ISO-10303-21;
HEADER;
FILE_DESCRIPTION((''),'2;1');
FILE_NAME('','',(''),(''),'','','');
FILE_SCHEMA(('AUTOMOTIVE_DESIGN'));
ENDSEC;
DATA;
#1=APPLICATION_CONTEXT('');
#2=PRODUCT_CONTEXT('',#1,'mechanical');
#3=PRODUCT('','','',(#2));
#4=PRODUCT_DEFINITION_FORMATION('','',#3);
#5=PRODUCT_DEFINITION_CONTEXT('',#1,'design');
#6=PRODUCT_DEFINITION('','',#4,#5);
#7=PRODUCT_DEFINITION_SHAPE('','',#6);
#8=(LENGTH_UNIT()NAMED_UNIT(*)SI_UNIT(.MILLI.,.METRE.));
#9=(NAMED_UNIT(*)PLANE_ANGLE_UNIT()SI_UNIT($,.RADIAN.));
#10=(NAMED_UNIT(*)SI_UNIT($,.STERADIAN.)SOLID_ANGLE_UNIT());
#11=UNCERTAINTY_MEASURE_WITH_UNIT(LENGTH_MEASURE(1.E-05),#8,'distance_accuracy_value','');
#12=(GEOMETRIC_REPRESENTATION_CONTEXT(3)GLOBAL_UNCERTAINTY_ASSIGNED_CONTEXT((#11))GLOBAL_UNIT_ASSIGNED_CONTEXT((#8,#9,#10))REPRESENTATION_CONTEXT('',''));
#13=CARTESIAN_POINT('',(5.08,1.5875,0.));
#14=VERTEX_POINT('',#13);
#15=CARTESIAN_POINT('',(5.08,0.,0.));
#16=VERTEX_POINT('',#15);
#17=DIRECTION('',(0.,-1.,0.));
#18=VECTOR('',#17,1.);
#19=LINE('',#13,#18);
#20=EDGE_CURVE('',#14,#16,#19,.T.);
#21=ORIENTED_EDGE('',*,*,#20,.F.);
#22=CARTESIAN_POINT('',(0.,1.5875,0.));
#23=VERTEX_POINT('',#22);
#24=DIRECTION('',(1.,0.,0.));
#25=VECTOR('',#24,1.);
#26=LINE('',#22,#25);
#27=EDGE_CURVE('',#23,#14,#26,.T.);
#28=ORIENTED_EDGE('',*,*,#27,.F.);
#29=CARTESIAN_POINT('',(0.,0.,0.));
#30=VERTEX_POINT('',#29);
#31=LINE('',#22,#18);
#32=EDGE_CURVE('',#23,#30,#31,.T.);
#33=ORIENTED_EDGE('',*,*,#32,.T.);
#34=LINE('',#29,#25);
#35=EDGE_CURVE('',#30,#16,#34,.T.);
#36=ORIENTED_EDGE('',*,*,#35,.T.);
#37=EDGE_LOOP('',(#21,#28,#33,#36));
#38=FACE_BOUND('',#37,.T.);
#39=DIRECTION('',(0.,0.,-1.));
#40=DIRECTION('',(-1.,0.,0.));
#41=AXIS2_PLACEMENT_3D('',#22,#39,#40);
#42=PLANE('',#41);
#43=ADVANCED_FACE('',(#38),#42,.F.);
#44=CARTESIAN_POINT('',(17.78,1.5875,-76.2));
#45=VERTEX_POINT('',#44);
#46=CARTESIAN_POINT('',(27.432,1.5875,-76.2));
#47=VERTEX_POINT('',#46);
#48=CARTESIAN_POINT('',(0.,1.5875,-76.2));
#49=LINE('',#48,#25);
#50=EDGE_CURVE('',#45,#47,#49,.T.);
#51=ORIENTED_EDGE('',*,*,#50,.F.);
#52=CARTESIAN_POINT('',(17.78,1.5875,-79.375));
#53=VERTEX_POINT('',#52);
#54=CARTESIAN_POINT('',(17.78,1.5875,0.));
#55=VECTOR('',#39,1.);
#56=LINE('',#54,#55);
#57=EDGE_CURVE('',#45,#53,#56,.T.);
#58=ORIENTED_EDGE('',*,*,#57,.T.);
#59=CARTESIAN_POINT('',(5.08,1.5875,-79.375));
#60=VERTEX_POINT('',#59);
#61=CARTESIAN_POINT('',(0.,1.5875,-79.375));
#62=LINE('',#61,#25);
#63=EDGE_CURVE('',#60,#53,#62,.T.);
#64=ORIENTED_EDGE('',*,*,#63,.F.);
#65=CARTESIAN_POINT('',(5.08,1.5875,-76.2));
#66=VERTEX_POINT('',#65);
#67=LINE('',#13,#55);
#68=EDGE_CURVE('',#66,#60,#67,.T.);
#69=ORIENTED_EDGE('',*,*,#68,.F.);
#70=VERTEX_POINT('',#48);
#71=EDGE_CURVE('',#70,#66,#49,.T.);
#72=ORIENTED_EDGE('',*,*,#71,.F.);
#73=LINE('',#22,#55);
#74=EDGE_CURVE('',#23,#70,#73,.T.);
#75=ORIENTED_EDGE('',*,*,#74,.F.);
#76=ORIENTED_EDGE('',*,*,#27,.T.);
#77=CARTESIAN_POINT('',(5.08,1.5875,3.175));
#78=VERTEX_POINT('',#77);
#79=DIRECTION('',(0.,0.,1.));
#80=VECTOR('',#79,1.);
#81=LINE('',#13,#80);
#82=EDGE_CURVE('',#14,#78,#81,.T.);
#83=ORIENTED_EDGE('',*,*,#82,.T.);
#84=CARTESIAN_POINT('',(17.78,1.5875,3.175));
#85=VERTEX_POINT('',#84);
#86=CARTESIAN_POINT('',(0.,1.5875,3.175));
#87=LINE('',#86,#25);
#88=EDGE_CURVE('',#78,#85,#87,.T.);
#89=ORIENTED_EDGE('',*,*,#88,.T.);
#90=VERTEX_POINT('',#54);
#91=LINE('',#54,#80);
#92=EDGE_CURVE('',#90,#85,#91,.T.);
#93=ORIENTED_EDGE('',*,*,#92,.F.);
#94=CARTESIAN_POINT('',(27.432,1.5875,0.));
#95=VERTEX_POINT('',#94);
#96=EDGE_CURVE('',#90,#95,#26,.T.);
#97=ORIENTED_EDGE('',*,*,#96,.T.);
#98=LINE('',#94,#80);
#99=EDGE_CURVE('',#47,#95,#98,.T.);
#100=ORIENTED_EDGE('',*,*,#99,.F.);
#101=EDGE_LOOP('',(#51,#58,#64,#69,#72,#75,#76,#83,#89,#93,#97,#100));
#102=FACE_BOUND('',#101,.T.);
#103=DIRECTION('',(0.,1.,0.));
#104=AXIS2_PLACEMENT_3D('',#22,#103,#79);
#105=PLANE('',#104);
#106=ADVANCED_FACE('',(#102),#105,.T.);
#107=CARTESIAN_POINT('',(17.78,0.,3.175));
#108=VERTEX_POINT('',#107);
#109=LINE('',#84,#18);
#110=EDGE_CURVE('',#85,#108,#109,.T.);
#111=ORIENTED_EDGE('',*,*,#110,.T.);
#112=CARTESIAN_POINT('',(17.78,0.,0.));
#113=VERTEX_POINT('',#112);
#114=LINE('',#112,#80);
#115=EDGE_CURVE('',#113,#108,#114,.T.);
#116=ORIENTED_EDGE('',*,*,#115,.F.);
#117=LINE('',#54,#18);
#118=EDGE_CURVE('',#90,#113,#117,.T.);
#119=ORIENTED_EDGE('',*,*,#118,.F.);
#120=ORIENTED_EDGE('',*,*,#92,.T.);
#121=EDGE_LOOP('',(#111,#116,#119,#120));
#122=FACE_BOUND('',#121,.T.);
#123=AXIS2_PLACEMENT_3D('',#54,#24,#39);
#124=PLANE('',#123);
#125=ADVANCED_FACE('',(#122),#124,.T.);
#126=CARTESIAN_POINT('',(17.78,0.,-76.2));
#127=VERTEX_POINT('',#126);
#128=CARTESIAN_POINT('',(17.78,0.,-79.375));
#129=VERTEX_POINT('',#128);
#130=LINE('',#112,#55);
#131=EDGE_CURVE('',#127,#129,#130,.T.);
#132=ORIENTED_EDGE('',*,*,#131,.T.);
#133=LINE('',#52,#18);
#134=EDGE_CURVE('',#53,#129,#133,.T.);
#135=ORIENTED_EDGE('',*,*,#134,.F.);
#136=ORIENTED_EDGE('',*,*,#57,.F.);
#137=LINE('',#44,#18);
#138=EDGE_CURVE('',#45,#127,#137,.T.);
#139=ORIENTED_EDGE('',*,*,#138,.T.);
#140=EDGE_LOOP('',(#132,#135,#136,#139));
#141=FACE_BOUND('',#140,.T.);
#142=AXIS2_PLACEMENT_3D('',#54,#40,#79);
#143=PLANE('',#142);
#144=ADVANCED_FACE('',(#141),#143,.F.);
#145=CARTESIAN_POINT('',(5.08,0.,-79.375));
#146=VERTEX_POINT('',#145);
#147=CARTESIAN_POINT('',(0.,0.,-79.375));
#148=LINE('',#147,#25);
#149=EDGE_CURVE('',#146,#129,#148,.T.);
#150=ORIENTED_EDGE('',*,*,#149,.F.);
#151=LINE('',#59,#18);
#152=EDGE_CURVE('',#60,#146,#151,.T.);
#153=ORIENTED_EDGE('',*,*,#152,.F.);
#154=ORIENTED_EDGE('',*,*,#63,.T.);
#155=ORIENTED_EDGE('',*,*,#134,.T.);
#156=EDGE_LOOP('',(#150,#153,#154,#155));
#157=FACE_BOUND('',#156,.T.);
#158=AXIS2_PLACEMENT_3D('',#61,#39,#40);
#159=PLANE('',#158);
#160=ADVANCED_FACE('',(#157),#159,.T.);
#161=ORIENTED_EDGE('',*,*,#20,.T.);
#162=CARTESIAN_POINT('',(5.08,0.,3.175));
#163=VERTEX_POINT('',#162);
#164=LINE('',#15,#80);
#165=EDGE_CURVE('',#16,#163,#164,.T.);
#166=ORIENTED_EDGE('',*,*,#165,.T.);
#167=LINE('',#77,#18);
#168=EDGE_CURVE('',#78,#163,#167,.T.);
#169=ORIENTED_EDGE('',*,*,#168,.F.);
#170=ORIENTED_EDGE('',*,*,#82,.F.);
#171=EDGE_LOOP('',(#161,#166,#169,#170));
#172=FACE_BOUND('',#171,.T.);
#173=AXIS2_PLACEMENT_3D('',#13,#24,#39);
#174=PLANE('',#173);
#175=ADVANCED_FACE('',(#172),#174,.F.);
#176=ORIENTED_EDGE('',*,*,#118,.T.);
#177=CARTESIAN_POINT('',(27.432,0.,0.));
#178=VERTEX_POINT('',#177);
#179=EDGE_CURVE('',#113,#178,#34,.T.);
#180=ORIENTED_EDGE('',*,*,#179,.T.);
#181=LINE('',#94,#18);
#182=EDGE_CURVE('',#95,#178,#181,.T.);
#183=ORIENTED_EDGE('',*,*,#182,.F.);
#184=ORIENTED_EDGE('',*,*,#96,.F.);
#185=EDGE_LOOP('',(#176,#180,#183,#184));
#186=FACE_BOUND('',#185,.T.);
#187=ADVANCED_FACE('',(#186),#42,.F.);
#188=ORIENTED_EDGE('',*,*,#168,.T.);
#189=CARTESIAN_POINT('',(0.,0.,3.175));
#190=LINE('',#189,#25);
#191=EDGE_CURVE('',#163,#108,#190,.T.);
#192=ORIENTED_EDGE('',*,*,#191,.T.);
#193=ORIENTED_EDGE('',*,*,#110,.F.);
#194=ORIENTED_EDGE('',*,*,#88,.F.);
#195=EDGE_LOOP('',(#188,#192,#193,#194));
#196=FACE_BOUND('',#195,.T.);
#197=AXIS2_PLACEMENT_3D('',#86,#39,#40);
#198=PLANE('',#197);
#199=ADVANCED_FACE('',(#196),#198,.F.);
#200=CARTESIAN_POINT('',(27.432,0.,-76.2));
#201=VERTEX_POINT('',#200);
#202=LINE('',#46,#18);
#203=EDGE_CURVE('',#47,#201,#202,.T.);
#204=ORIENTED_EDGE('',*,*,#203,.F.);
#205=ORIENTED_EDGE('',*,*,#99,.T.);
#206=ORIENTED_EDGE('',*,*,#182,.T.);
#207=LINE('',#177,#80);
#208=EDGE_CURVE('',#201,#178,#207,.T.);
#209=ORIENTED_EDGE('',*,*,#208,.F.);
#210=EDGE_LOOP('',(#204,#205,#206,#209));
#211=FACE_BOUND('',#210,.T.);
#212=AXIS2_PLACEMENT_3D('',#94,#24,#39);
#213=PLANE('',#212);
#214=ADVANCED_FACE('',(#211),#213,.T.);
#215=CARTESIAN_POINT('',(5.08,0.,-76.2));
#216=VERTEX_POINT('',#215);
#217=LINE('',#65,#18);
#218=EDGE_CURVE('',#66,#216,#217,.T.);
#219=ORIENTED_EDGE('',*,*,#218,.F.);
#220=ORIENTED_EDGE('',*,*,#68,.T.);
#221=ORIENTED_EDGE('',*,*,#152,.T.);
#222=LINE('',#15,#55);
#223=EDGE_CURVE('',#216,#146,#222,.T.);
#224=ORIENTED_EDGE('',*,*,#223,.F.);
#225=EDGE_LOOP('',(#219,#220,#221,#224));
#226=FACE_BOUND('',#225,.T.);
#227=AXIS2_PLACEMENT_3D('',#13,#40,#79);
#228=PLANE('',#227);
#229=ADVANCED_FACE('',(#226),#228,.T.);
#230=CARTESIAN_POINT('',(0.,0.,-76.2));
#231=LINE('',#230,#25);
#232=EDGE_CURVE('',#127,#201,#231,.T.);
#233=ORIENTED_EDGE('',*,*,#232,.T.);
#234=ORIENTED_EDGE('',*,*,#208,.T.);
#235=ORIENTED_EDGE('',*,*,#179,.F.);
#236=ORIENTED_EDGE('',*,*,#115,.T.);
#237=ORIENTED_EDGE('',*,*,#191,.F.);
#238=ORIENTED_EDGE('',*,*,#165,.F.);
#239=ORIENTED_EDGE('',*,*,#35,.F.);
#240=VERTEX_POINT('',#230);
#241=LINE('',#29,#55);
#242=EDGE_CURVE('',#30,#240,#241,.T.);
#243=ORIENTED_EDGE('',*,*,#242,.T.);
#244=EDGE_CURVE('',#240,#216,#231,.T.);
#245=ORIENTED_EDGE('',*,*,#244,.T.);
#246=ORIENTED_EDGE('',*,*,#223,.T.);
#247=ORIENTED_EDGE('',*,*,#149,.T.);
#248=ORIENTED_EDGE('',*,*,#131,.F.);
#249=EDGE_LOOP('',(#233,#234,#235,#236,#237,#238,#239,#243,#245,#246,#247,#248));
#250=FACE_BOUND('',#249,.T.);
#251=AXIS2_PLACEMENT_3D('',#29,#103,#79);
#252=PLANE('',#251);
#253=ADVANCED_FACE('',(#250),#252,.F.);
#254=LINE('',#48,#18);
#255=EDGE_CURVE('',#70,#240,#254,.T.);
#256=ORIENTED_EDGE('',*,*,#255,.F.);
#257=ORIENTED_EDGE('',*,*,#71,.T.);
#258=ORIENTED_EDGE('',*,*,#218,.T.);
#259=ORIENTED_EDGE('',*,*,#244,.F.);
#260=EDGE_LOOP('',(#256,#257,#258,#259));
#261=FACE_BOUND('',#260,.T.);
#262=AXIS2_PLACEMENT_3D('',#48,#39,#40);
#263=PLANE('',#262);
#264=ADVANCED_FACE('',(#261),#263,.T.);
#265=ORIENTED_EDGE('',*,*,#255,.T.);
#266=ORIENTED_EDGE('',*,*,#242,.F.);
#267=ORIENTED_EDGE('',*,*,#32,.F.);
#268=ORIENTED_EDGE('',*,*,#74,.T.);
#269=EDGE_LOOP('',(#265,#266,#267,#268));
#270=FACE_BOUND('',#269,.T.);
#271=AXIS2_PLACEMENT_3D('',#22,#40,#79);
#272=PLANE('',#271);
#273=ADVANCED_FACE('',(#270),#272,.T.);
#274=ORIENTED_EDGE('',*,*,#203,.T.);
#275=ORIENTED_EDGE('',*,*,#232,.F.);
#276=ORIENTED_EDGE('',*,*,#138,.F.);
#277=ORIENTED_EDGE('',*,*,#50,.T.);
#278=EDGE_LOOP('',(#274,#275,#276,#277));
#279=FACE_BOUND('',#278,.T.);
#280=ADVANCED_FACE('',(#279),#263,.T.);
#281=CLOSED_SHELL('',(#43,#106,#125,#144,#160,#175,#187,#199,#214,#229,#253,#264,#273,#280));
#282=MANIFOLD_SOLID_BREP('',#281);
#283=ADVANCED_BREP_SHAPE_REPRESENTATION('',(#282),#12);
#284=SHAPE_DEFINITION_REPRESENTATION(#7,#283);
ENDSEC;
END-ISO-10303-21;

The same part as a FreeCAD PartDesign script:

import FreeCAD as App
import Part
import Sketcher
from FreeCAD import Vector
Q = App.Units.Quantity

doc = App.newDocument("Part")
body = doc.addObject("PartDesign::Body", "Body")

# Sketch on XZ plane
sketch1 = doc.addObject("Sketcher::SketchObject", "Sketch")
body.addObject(sketch1)
sketch1.AttachmentSupport = (doc.XZ_Plane, [""])
sketch1.MapMode = "FlatFace"
sketch1.addGeometry(Part.LineSegment(Vector(0, -76.2, 0), Vector(0, 0, 0)), False)
sketch1.addGeometry(Part.LineSegment(Vector(0, 0, 0), Vector(5.1, 0, 0)), False)
sketch1.addGeometry(Part.LineSegment(Vector(5.1, 0, 0), Vector(5.1, 3.2, 0)), False)
sketch1.addGeometry(Part.LineSegment(Vector(5.1, 3.2, 0), Vector(17.8, 3.2, 0)), False)
sketch1.addGeometry(Part.LineSegment(Vector(17.8, 3.2, 0), Vector(17.8, 0, 0)), False)
sketch1.addGeometry(Part.LineSegment(Vector(17.8, 0, 0), Vector(27.4, 0, 0)), False)
sketch1.addGeometry(Part.LineSegment(Vector(27.4, 0, 0), Vector(27.4, -76.2, 0)), False)
sketch1.addGeometry(Part.LineSegment(Vector(27.4, -76.2, 0), Vector(17.8, -76.2, 0)), False)
sketch1.addGeometry(Part.LineSegment(Vector(17.8, -76.2, 0), Vector(17.8, -79.4, 0)), False)
sketch1.addGeometry(Part.LineSegment(Vector(17.8, -79.4, 0), Vector(5.1, -79.4, 0)), False)
sketch1.addGeometry(Part.LineSegment(Vector(5.1, -79.4, 0), Vector(5.1, -76.2, 0)), False)
sketch1.addGeometry(Part.LineSegment(Vector(5.1, -76.2, 0), Vector(0, -76.2, 0)), False)
sketch1.addConstraint(Sketcher.Constraint("Coincident", 0, 2, 1, 1))
sketch1.addConstraint(Sketcher.Constraint("Coincident", 1, 2, 2, 1))
sketch1.addConstraint(Sketcher.Constraint("Coincident", 2, 2, 3, 1))
sketch1.addConstraint(Sketcher.Constraint("Coincident", 3, 2, 4, 1))
sketch1.addConstraint(Sketcher.Constraint("Coincident", 4, 2, 5, 1))
sketch1.addConstraint(Sketcher.Constraint("Coincident", 5, 2, 6, 1))
sketch1.addConstraint(Sketcher.Constraint("Coincident", 6, 2, 7, 1))
sketch1.addConstraint(Sketcher.Constraint("Coincident", 7, 2, 8, 1))
sketch1.addConstraint(Sketcher.Constraint("Coincident", 8, 2, 9, 1))
sketch1.addConstraint(Sketcher.Constraint("Coincident", 9, 2, 10, 1))
sketch1.addConstraint(Sketcher.Constraint("Coincident", 10, 2, 11, 1))
sketch1.addConstraint(Sketcher.Constraint("Coincident", 11, 2, 0, 1))
sketch1.addConstraint(Sketcher.Constraint("Vertical", 0))
sketch1.addConstraint(Sketcher.Constraint("Horizontal", 1))
sketch1.addConstraint(Sketcher.Constraint("Vertical", 2))
sketch1.addConstraint(Sketcher.Constraint("Horizontal", 3))
sketch1.addConstraint(Sketcher.Constraint("Vertical", 4))
sketch1.addConstraint(Sketcher.Constraint("Horizontal", 5))
sketch1.addConstraint(Sketcher.Constraint("Vertical", 6))
sketch1.addConstraint(Sketcher.Constraint("Horizontal", 7))
sketch1.addConstraint(Sketcher.Constraint("Vertical", 8))
sketch1.addConstraint(Sketcher.Constraint("Horizontal", 9))
sketch1.addConstraint(Sketcher.Constraint("Vertical", 10))
sketch1.addConstraint(Sketcher.Constraint("Horizontal", 11))
sketch1.addConstraint(Sketcher.Constraint("Coincident", 0, 2, -1, 1))
sketch1.addConstraint(Sketcher.Constraint("PointOnObject", 4, 2, -1))
sketch1.addConstraint(Sketcher.Constraint("Horizontal", 7, 2, 10, 2))
sketch1.addConstraint(Sketcher.Constraint("Vertical", 4, 2, 7, 2))
sketch1.addConstraint(Sketcher.Constraint("Vertical", 2, 2, 9, 2))
sketch1.addConstraint(Sketcher.Constraint("Equal", 4, 8))
sketch1.addConstraint(Sketcher.Constraint("DistanceY", 0, 1, 0, 2, Q("3 in")))
sketch1.addConstraint(Sketcher.Constraint("DistanceX", 1, 1, 1, 2, Q("0.2 in")))
sketch1.addConstraint(Sketcher.Constraint("DistanceX", 3, 1, 3, 2, Q("0.5 in")))
sketch1.addConstraint(Sketcher.Constraint("DistanceX", 5, 1, 5, 2, Q("0.38 in")))
sketch1.addConstraint(Sketcher.Constraint("DistanceY", 2, 1, 2, 2, Q("0.125 in")))
pad1 = doc.addObject("PartDesign::Pad", "Pad")
body.addObject(pad1)
pad1.Profile = sketch1
pad1.Length = Q("0.0625 in")
pad1.Reversed = True

doc.recompute()
